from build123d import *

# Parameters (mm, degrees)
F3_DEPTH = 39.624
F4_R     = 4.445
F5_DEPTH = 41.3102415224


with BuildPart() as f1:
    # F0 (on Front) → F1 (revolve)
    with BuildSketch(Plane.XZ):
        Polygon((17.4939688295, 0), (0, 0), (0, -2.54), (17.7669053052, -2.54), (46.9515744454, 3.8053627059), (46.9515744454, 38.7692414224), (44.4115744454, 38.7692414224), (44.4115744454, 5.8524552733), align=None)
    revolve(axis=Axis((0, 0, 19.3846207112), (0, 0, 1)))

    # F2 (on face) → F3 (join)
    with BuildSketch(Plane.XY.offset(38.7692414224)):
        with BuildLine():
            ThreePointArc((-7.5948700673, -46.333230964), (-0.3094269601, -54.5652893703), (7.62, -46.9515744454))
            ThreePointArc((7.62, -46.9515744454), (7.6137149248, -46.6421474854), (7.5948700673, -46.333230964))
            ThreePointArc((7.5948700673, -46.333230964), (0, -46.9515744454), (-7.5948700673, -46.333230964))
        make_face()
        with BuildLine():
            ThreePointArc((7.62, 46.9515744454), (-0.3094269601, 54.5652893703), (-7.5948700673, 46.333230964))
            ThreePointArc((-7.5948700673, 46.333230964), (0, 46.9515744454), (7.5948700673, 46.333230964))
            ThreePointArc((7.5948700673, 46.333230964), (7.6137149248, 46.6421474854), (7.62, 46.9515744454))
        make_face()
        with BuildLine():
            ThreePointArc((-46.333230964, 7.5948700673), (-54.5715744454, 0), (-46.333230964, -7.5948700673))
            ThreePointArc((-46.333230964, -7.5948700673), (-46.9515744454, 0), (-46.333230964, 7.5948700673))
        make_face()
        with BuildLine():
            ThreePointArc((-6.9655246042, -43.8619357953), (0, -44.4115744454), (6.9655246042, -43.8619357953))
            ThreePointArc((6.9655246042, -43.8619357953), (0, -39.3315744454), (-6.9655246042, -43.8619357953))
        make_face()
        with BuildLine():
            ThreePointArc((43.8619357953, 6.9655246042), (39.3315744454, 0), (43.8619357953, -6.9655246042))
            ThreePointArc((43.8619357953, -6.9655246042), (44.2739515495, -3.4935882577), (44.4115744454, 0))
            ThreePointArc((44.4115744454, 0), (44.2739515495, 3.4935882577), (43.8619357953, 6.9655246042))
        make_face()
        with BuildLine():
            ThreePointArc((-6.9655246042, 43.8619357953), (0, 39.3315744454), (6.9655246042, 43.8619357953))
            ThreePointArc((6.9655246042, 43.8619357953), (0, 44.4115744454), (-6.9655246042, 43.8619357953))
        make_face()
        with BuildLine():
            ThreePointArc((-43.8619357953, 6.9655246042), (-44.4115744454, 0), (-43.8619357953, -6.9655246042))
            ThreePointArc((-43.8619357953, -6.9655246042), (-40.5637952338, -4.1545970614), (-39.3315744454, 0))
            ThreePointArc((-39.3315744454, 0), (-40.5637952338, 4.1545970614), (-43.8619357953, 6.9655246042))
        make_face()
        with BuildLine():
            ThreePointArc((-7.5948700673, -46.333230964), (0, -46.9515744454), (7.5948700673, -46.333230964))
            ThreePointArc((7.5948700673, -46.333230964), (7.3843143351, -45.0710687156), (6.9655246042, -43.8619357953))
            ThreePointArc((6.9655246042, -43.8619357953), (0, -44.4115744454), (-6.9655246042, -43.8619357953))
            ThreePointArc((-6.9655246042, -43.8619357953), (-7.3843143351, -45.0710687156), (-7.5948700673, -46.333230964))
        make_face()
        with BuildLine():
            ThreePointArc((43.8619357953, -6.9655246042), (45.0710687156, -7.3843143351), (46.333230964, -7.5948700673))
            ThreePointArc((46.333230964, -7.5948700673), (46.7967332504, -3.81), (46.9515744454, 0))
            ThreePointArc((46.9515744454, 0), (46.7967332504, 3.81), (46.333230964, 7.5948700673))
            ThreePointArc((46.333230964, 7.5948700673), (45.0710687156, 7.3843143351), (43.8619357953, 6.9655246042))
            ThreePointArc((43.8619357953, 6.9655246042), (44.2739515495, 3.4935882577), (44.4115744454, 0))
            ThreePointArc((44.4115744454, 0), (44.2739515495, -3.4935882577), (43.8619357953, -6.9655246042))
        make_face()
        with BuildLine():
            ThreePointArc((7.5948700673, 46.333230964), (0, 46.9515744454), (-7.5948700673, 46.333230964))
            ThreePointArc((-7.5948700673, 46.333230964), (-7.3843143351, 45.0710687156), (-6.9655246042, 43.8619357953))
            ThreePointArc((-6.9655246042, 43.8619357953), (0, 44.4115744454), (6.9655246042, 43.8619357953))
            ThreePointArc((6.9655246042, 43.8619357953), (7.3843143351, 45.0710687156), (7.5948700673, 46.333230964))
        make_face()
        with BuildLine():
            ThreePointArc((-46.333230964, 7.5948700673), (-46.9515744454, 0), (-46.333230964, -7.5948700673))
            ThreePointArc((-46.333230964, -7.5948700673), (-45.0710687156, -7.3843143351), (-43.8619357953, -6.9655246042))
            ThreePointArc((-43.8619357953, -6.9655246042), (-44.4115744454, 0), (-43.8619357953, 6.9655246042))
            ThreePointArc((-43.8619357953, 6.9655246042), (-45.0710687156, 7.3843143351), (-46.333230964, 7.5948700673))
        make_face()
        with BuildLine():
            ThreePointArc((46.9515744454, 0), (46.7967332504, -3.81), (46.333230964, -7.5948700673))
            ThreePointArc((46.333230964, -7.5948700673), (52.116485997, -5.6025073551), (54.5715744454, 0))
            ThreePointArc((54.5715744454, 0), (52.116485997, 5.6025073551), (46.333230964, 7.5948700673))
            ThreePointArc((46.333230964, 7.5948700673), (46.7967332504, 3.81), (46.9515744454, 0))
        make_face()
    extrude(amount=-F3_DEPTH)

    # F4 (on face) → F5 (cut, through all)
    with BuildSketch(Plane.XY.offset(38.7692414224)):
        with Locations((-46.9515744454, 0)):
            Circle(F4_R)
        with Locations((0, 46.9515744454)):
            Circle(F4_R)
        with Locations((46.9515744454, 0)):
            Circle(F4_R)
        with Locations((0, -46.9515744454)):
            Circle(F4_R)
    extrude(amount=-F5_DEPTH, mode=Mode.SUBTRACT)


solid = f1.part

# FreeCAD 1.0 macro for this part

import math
import FreeCAD as App
import Part
import Sketcher

V = App.Vector
Q = App.Units.Quantity


def add_polygon(sketch, points):
    """Adds a closed chain of lines whose ends are joined by coincident constraints."""
    first, n = sketch.GeometryCount, len(points)
    for a, b in zip(points, points[1:] + points[:1]):
        sketch.addGeometry(Part.LineSegment(App.Vector(*a, 0), App.Vector(*b, 0)), False)
    for i in range(n):
        sketch.addConstraint(Sketcher.Constraint("Coincident", first + i, 2, first + (i + 1) % n, 1))

doc = App.newDocument("Part")
body = doc.addObject("PartDesign::Body", "Body")

sketch1 = body.newObject("Sketcher::SketchObject", "Sketch")
sketch1.AttachmentSupport = (doc.getObject("XZ_Plane"), [""])
sketch1.MapMode = "FlatFace"
add_polygon(sketch1, [(17.493969, 0), (0, 0), (0, -2.54), (17.766905, -2.54), (46.951574, 3.805363), (46.951574, 38.769241), (44.411574, 38.769241), (44.411574, 5.852455)])
sketch1.addConstraint(Sketcher.Constraint("Horizontal", 0))
sketch1.addConstraint(Sketcher.Constraint("Vertical", 1))
sketch1.addConstraint(Sketcher.Constraint("Horizontal", 2))
sketch1.addConstraint(Sketcher.Constraint("Vertical", 4))
sketch1.addConstraint(Sketcher.Constraint("Horizontal", 5))
sketch1.addConstraint(Sketcher.Constraint("Vertical", 6))
sketch1.addConstraint(Sketcher.Constraint("Coincident", 0, 2, -1, 1))
sketch1.addConstraint(Sketcher.Constraint("Parallel", 3, 7))
sketch1.addConstraint(Sketcher.Constraint("Equal", 5, 1))
sketch1.addConstraint(Sketcher.Constraint("DistanceX", 5, 2, 5, 1, Q("0.1 in")))
sketch1.addConstraint(Sketcher.Constraint("DistanceX", 0, 2, 0, 1, Q("17.493969 mm")))
sketch1.addConstraint(Sketcher.Constraint("DistanceY", 4, 1, 4, 2, Q("34.963879 mm")))
sketch1.addConstraint(Sketcher.Constraint("DistanceX", 2, 1, 2, 2, Q("17.766905 mm")))
sketch1.addConstraint(Sketcher.Constraint("DistanceY", 6, 2, 6, 1, Q("32.916786 mm")))
sketch1.addConstraint(Sketcher.Constraint("DistanceY", -1, 1, 4, 2, Q("38.769241 mm")))
revolution = body.newObject("PartDesign::Revolution", "Revolution")
revolution.Profile = sketch1
revolution.ReferenceAxis = (sketch1, ["V_Axis"])
revolution.Angle = 360

sketch2 = body.newObject("Sketcher::SketchObject", "Sketch001")
sketch2.AttachmentSupport = (doc.getObject("XY_Plane"), [""])
sketch2.MapMode = "FlatFace"
sketch2.AttachmentOffset = App.Placement(V(0, 0, 38.769241), App.Rotation())
sketch2.addGeometry(Part.ArcOfCircle(Part.Circle(V(0, -46.951574, 0), V(0, 0, 1), 7.62), math.radians(175.345476), math.radians(360)), False)
sketch2.addGeometry(Part.ArcOfCircle(Part.Circle(V(0, -46.951574, 0), V(0, 0, 1), 7.62), math.radians(0), math.radians(4.654524)), False)
sketch2.addGeometry(Part.ArcOfCircle(Part.Circle(V(0, -46.951574, 0), V(0, 0, 1), 7.62), math.radians(4.654524), math.radians(23.920231)), False)
sketch2.addGeometry(Part.ArcOfCircle(Part.Circle(V(0, -46.951574, 0), V(0, 0, 1), 7.62), math.radians(23.920231), math.radians(156.079769)), False)
sketch2.addGeometry(Part.ArcOfCircle(Part.Circle(V(0, -46.951574, 0), V(0, 0, 1), 7.62), math.radians(156.079769), math.radians(175.345476)), False)
sketch2.addGeometry(Part.ArcOfCircle(Part.Circle(V(0, 46.951574, 0), V(0, 0, 1), 7.62), math.radians(0), math.radians(184.654524)), False)
sketch2.addGeometry(Part.ArcOfCircle(Part.Circle(V(0, 46.951574, 0), V(0, 0, 1), 7.62), math.radians(-175.345476), math.radians(-156.079769)), False)
sketch2.addGeometry(Part.ArcOfCircle(Part.Circle(V(0, 46.951574, 0), V(0, 0, 1), 7.62), math.radians(-156.079769), math.radians(-23.920231)), False)
sketch2.addGeometry(Part.ArcOfCircle(Part.Circle(V(0, 46.951574, 0), V(0, 0, 1), 7.62), math.radians(-23.920231), math.radians(-4.654524)), False)
sketch2.addGeometry(Part.ArcOfCircle(Part.Circle(V(0, 46.951574, 0), V(0, 0, 1), 7.62), math.radians(-4.654524), math.radians(0)), False)
sketch2.addGeometry(Part.ArcOfCircle(Part.Circle(V(-46.951574, 0, 0), V(0, 0, 1), 7.62), math.radians(85.345476), math.radians(274.654524)), False)
sketch2.addGeometry(Part.ArcOfCircle(Part.Circle(V(-46.951574, 0, 0), V(0, 0, 1), 7.62), math.radians(-85.345476), math.radians(-66.079769)), False)
sketch2.addGeometry(Part.ArcOfCircle(Part.Circle(V(-46.951574, 0, 0), V(0, 0, 1), 7.62), math.radians(-66.079769), math.radians(0)), False)
sketch2.addGeometry(Part.ArcOfCircle(Part.Circle(V(-46.951574, 0, 0), V(0, 0, 1), 7.62), math.radians(0), math.radians(66.079769)), False)
sketch2.addGeometry(Part.ArcOfCircle(Part.Circle(V(-46.951574, 0, 0), V(0, 0, 1), 7.62), math.radians(66.079769), math.radians(85.345476)), False)
sketch2.addGeometry(Part.ArcOfCircle(Part.Circle(V(46.951574, 0, 0), V(0, 0, 1), 7.62), math.radians(113.920231), math.radians(246.079769)), False)
sketch2.addGeometry(Part.ArcOfCircle(Part.Circle(V(46.951574, 0, 0), V(0, 0, 1), 7.62), math.radians(-113.920231), math.radians(-94.654524)), False)
sketch2.addGeometry(Part.ArcOfCircle(Part.Circle(V(46.951574, 0, 0), V(0, 0, 1), 7.62), math.radians(-94.654524), math.radians(0)), False)
sketch2.addGeometry(Part.ArcOfCircle(Part.Circle(V(46.951574, 0, 0), V(0, 0, 1), 7.62), math.radians(0), math.radians(94.654524)), False)
sketch2.addGeometry(Part.ArcOfCircle(Part.Circle(V(46.951574, 0, 0), V(0, 0, 1), 7.62), math.radians(94.654524), math.radians(113.920231)), False)
sketch2.addConstraint(Sketcher.Constraint("Tangent", 0, 2, 1, 1))
sketch2.addConstraint(Sketcher.Constraint("Tangent", 1, 2, 2, 1))
sketch2.addConstraint(Sketcher.Constraint("Tangent", 2, 2, 3, 1))
sketch2.addConstraint(Sketcher.Constraint("Tangent", 3, 2, 4, 1))
sketch2.addConstraint(Sketcher.Constraint("Tangent", 4, 2, 0, 1))
sketch2.addConstraint(Sketcher.Constraint("Tangent", 5, 2, 6, 1))
sketch2.addConstraint(Sketcher.Constraint("Tangent", 6, 2, 7, 1))
sketch2.addConstraint(Sketcher.Constraint("Tangent", 7, 2, 8, 1))
sketch2.addConstraint(Sketcher.Constraint("Tangent", 8, 2, 9, 1))
sketch2.addConstraint(Sketcher.Constraint("Tangent", 9, 2, 5, 1))
sketch2.addConstraint(Sketcher.Constraint("Tangent", 10, 2, 11, 1))
sketch2.addConstraint(Sketcher.Constraint("Tangent", 11, 2, 12, 1))
sketch2.addConstraint(Sketcher.Constraint("Tangent", 12, 2, 13, 1))
sketch2.addConstraint(Sketcher.Constraint("Tangent", 13, 2, 14, 1))
sketch2.addConstraint(Sketcher.Constraint("Tangent", 14, 2, 10, 1))
sketch2.addConstraint(Sketcher.Constraint("Tangent", 15, 2, 16, 1))
sketch2.addConstraint(Sketcher.Constraint("Tangent", 16, 2, 17, 1))
sketch2.addConstraint(Sketcher.Constraint("Tangent", 17, 2, 18, 1))
sketch2.addConstraint(Sketcher.Constraint("Tangent", 18, 2, 19, 1))
sketch2.addConstraint(Sketcher.Constraint("Tangent", 19, 2, 15, 1))
sketch2.addConstraint(Sketcher.Constraint("Coincident", 2, 3, 0, 3))
sketch2.addConstraint(Sketcher.Constraint("Coincident", 7, 3, 5, 3))
sketch2.addConstraint(Sketcher.Constraint("Coincident", 12, 3, 10, 3))
sketch2.addConstraint(Sketcher.Constraint("Coincident", 17, 3, 15, 3))
sketch2.addConstraint(Sketcher.Constraint("Equal", 4, 5))
sketch2.addConstraint(Sketcher.Constraint("Equal", 9, 10))
sketch2.addConstraint(Sketcher.Constraint("Equal", 14, 15))
sketch2.addConstraint(Sketcher.Constraint("Symmetric", 0, 3, 5, 3, -1, 1))
sketch2.addConstraint(Sketcher.Constraint("Symmetric", 10, 3, 15, 3, -1, 1))
sketch2.addConstraint(Sketcher.Constraint("Symmetric", 2, 2, 3, 2, -2))
sketch2.addConstraint(Sketcher.Constraint("Symmetric", 11, 2, 15, 2, -2))
sketch2.addConstraint(Sketcher.Constraint("PointOnObject", 12, 2, -1))
sketch2.addConstraint(Sketcher.Constraint("PointOnObject", 17, 2, -1))
sketch2.addConstraint(Sketcher.Constraint("Horizontal", 4, 3, 0, 2))
sketch2.addConstraint(Sketcher.Constraint("Horizontal", 1, 2, 4, 2))
sketch2.addConstraint(Sketcher.Constraint("Horizontal", 6, 2, 7, 2))
sketch2.addConstraint(Sketcher.Constraint("Horizontal", 5, 2, 8, 2))
sketch2.addConstraint(Sketcher.Constraint("Horizontal", 8, 3, 9, 2))
sketch2.addConstraint(Sketcher.Constraint("Horizontal", 10, 2, 16, 2))
sketch2.addConstraint(Sketcher.Constraint("Horizontal", 14, 2, 18, 2))
sketch2.addConstraint(Sketcher.Constraint("Horizontal", 13, 2, 19, 2))
sketch2.addConstraint(Sketcher.Constraint("Vertical", 4, 2, 5, 2))
sketch2.addConstraint(Sketcher.Constraint("Vertical", 3, 2, 6, 2))
sketch2.addConstraint(Sketcher.Constraint("Vertical", 11, 2, 13, 2))
sketch2.addConstraint(Sketcher.Constraint("Vertical", 10, 2, 14, 2))
sketch2.addConstraint(Sketcher.Constraint("Radius", 0, Q("0.3 in")))
sketch2.addConstraint(Sketcher.Constraint("DistanceX", -1, 1, 1, 2, Q("7.59487 mm")))
sketch2.addConstraint(Sketcher.Constraint("DistanceY", 1, 2, -1, 1, Q("46.333231 mm")))
sketch2.addConstraint(Sketcher.Constraint("DistanceX", 10, 2, -1, 1, Q("46.333231 mm")))
sketch2.addConstraint(Sketcher.Constraint("DistanceY", 10, 2, -1, 1, Q("7.59487 mm")))
sketch2.addConstraint(Sketcher.Constraint("DistanceY", 0, 2, 2, 2, Q("3.089639 mm")))
sketch2.addConstraint(Sketcher.Constraint("DistanceX", 14, 3, 11, 2, Q("3.089639 mm")))
pad1 = body.newObject("PartDesign::Pad", "Pad")
pad1.Profile = sketch2
pad1.Length = Q("1.56 in")
pad1.Reversed = True

sketch3 = body.newObject("Sketcher::SketchObject", "Sketch002")
sketch3.AttachmentSupport = (doc.getObject("XY_Plane"), [""])
sketch3.MapMode = "FlatFace"
sketch3.AttachmentOffset = App.Placement(V(0, 0, 38.769241), App.Rotation())
sketch3.addGeometry(Part.Circle(V(-46.951574, 0, 0), V(0, 0, 1), 4.445), False)
sketch3.addGeometry(Part.Circle(V(0, 46.951574, 0), V(0, 0, 1), 4.445), False)
sketch3.addGeometry(Part.Circle(V(46.951574, 0, 0), V(0, 0, 1), 4.445), False)
sketch3.addGeometry(Part.Circle(V(0, -46.951574, 0), V(0, 0, 1), 4.445), False)
sketch3.addConstraint(Sketcher.Constraint("Equal", 0, 1))
sketch3.addConstraint(Sketcher.Constraint("Equal", 1, 2))
sketch3.addConstraint(Sketcher.Constraint("Equal", 2, 3))
sketch3.addConstraint(Sketcher.Constraint("Symmetric", 0, 3, 2, 3, -1, 1))
sketch3.addConstraint(Sketcher.Constraint("Symmetric", 1, 3, 3, 3, -1, 1))
sketch3.addConstraint(Sketcher.Constraint("PointOnObject", 0, 3, -1))
sketch3.addConstraint(Sketcher.Constraint("PointOnObject", 1, 3, -2))
sketch3.addConstraint(Sketcher.Constraint("Diameter", 0, Q("0.35 in")))
sketch3.addConstraint(Sketcher.Constraint("DistanceX", 0, 3, 2, 3, Q("93.903149 mm")))
sketch3.addConstraint(Sketcher.Constraint("DistanceY", 3, 3, 1, 3, Q("93.903149 mm")))
pocket1 = body.newObject("PartDesign::Pocket", "Pocket")
pocket1.Profile = sketch3
pocket1.Type = "ThroughAll"

doc.recompute()
